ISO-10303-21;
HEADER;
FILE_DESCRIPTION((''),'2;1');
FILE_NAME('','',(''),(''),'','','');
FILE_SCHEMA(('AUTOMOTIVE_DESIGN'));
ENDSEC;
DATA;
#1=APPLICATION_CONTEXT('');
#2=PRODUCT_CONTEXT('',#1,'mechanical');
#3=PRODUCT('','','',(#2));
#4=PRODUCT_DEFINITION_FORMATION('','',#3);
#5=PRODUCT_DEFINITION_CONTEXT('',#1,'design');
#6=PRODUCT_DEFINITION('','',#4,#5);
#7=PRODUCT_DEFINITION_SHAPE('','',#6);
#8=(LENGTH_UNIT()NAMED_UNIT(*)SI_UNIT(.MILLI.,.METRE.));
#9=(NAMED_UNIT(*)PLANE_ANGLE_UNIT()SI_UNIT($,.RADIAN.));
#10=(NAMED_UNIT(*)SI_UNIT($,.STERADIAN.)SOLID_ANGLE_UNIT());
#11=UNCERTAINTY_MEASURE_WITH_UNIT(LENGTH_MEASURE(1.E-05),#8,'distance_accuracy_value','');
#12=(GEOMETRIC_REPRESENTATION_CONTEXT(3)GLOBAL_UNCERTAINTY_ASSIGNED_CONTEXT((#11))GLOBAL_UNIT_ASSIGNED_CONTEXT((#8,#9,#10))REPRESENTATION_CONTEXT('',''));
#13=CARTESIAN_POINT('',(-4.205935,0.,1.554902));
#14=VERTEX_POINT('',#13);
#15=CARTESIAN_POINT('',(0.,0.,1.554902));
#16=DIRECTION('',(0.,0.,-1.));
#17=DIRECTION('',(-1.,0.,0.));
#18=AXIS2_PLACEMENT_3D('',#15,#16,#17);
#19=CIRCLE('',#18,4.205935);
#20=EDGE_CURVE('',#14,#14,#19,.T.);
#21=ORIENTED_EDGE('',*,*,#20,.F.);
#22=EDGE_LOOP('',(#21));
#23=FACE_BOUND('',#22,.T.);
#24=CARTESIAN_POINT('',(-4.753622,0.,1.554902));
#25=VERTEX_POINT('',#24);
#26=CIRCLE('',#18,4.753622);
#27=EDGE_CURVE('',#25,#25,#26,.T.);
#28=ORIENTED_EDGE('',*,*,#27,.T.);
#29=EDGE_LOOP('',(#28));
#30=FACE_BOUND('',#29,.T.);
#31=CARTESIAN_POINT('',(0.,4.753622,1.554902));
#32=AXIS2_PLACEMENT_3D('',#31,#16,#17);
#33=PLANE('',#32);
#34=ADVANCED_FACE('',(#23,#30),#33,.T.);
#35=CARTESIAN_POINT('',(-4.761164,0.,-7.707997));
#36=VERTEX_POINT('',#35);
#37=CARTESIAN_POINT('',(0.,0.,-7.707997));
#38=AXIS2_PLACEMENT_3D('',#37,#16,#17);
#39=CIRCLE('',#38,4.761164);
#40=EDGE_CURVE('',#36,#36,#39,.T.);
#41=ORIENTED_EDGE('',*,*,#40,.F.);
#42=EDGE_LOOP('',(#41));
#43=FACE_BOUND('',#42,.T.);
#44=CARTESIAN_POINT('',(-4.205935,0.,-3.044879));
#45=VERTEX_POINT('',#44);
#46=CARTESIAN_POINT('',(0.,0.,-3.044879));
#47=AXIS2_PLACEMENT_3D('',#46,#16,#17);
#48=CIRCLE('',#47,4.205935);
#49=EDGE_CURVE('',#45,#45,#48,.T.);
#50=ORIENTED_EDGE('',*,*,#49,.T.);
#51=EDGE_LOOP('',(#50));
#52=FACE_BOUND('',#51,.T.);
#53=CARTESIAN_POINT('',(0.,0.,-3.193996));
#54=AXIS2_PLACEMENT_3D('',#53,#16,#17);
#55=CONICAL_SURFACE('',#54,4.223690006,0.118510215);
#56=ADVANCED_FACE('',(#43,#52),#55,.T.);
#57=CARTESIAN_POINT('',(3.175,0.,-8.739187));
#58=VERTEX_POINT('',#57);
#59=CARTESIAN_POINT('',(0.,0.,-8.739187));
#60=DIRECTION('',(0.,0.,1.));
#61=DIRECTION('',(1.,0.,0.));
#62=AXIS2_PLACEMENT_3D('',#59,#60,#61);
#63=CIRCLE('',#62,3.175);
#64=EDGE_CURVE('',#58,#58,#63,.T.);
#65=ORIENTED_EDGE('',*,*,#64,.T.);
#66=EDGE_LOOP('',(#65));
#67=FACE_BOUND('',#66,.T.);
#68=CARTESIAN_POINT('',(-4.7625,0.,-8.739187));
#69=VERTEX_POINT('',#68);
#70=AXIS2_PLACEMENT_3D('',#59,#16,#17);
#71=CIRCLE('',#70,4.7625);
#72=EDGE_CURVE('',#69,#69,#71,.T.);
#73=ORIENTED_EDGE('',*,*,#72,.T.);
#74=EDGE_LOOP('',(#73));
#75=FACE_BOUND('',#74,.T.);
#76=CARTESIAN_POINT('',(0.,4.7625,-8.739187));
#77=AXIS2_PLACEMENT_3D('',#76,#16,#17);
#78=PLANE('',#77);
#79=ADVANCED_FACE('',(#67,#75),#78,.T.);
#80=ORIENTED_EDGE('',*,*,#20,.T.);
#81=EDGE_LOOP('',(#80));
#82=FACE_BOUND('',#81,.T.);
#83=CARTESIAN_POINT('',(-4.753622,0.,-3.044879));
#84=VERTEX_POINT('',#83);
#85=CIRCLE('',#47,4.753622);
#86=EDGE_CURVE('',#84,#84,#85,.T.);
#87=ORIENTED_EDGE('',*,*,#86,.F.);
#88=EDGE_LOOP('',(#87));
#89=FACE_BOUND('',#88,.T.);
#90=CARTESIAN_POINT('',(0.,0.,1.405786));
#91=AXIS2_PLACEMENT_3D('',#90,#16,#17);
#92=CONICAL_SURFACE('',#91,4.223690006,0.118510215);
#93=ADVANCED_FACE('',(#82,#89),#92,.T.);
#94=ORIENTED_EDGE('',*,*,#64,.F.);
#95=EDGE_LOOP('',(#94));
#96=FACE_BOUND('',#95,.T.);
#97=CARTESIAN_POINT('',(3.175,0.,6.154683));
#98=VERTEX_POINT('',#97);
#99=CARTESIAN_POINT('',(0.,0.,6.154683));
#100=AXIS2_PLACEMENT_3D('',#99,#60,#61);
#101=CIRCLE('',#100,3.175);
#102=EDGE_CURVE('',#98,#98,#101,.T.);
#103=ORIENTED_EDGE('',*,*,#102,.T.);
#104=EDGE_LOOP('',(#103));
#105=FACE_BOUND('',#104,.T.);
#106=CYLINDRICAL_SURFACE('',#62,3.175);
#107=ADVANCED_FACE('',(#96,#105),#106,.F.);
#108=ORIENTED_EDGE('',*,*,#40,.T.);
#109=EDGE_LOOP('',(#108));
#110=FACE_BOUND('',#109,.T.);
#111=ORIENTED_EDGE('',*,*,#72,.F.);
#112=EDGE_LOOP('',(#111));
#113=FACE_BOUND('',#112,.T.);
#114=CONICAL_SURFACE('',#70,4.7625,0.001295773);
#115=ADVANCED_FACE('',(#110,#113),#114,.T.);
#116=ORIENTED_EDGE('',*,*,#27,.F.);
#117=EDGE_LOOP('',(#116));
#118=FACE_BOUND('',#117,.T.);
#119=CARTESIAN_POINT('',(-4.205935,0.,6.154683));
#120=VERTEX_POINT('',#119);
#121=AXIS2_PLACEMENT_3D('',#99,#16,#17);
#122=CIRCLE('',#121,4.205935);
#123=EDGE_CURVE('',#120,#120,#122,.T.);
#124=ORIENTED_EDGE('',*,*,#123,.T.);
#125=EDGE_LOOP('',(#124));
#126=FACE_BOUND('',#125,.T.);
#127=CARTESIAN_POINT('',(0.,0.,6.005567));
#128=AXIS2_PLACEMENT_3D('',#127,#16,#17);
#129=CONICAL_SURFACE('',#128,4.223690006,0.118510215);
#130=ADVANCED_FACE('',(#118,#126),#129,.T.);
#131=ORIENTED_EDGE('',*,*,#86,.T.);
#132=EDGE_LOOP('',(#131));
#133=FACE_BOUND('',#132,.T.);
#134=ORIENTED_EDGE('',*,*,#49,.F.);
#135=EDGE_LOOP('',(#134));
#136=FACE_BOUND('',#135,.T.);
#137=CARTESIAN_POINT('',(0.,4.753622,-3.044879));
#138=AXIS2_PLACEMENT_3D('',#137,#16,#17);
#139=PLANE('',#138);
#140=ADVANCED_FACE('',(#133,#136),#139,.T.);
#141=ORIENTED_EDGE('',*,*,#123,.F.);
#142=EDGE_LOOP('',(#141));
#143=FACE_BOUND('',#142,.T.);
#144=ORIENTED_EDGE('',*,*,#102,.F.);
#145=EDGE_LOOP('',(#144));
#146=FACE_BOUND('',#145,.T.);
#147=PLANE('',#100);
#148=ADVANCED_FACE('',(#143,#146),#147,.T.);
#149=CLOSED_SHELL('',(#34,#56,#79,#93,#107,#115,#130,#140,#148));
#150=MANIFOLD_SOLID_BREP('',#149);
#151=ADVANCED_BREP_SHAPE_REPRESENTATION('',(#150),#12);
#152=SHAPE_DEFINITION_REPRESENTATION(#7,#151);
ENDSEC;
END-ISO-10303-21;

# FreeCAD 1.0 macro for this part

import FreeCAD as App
import Part
import Sketcher
Q = App.Units.Quantity


def add_polygon(sketch, points):
    """Adds a closed chain of lines whose ends are joined by coincident constraints."""
    first, n = sketch.GeometryCount, len(points)
    for a, b in zip(points, points[1:] + points[:1]):
        sketch.addGeometry(Part.LineSegment(App.Vector(*a, 0), App.Vector(*b, 0)), False)
    for i in range(n):
        sketch.addConstraint(Sketcher.Constraint("Coincident", first + i, 2, first + (i + 1) % n, 1))

doc = App.newDocument("Part")
params = doc.addObject("Spreadsheet::Sheet", "Params")
for row, (alias, value) in enumerate([
    ("sketch1_width", "0.1875 in"),
    ("revolution_angle", "360 deg"),
    ("sketch2_diameter", "0.25 in"),
], start=1):
    params.set(f"A{row}", alias)
    params.set(f"B{row}", "=" + value)
    params.setAlias(f"B{row}", alias)

body = doc.addObject("PartDesign::Body", "Body")

sketch1 = doc.addObject("Sketcher::SketchObject", "Sketch")
body.addObject(sketch1)
sketch1.AttachmentSupport = (doc.YZ_Plane, [""])
sketch1.MapMode = "FlatFace"
add_polygon(sketch1, [(0, 6.15), (0, -8.74), (4.76, -8.74), (4.76, -7.71), (4.22, -3.19), (4.21, -3.04), (4.75, -3.04), (4.22, 1.41), (4.21, 1.55), (4.75, 1.55), (4.22, 6.01), (4.21, 6.15)])
sketch1.addConstraint(Sketcher.Constraint("Vertical", 0))
sketch1.addConstraint(Sketcher.Constraint("Horizontal", 1))
sketch1.addConstraint(Sketcher.Constraint("Horizontal", 5))
sketch1.addConstraint(Sketcher.Constraint("Horizontal", 8))
sketch1.addConstraint(Sketcher.Constraint("Horizontal", 11))
sketch1.addConstraint(Sketcher.Constraint("PointOnObject", 0, 2, -2))
sketch1.addConstraint(Sketcher.Constraint("Parallel", 3, 4))
sketch1.addConstraint(Sketcher.Constraint("Parallel", 4, 6))
sketch1.addConstraint(Sketcher.Constraint("Parallel", 6, 7))
sketch1.addConstraint(Sketcher.Constraint("Parallel", 7, 9))
sketch1.addConstraint(Sketcher.Constraint("Parallel", 9, 10))
sketch1.addConstraint(Sketcher.Constraint("Vertical", 3, 2, 6, 2))
sketch1.addConstraint(Sketcher.Constraint("Vertical", 4, 2, 7, 2))
sketch1.addConstraint(Sketcher.Constraint("Vertical", 5, 2, 8, 2))
sketch1.addConstraint(Sketcher.Constraint("Vertical", 6, 2, 9, 2))
sketch1.addConstraint(Sketcher.Constraint("Vertical", 7, 2, 10, 2))
sketch1.addConstraint(Sketcher.Constraint("DistanceX", 1, 1, 1, 2, Q("0.1875 in")))
sketch1.addConstraint(Sketcher.Constraint("DistanceY", 0, 2, 0, 1, 14.893871))
sketch1.addConstraint(Sketcher.Constraint("DistanceY", -1, 1, 7, 2, 1.554902))
sketch1.addConstraint(Sketcher.Constraint("DistanceY", 2, 2, 3, 2, 4.514001))
sketch1.addConstraint(Sketcher.Constraint("DistanceY", 2, 2, 7, 2, 9.262899))
sketch1.addConstraint(Sketcher.Constraint("Distance", 2, 1.031192))
sketch1.addConstraint(Sketcher.Constraint("DistanceX", 5, 1, 5, 2, 0.547688))
sketch1.addConstraint(Sketcher.Constraint("DistanceX", 11, 2, 11, 1, 4.205935))
sketch1.setExpression("Constraints[28]", "Params.sketch1_width")
revolution = doc.addObject("PartDesign::Revolution", "Revolution")
body.addObject(revolution)
revolution.Profile = sketch1
revolution.ReferenceAxis = (sketch1, ["V_Axis"])
revolution.setExpression("Angle", "Params.revolution_angle")

sketch2 = doc.addObject("Sketcher::SketchObject", "Sketch001")
body.addObject(sketch2)
sketch2.AttachmentSupport = (doc.XY_Plane, [""])
sketch2.MapMode = "FlatFace"
sketch2.AttachmentOffset = App.Placement(App.Vector(0, 0, 6.154683), App.Rotation())
sketch2.addGeometry(Part.Circle(App.Vector(0, 0, 0), App.Vector(0, 0, 1), 3.2), False)
sketch2.addConstraint(Sketcher.Constraint("Coincident", 0, 3, -1, 1))
sketch2.addConstraint(Sketcher.Constraint("Diameter", 0, Q("0.25 in")))
sketch2.setExpression("Constraints[1]", "Params.sketch2_diameter")
pocket1 = doc.addObject("PartDesign::Pocket", "Pocket")
body.addObject(pocket1)
pocket1.Profile = sketch2
pocket1.Type = "ThroughAll"

doc.recompute()
